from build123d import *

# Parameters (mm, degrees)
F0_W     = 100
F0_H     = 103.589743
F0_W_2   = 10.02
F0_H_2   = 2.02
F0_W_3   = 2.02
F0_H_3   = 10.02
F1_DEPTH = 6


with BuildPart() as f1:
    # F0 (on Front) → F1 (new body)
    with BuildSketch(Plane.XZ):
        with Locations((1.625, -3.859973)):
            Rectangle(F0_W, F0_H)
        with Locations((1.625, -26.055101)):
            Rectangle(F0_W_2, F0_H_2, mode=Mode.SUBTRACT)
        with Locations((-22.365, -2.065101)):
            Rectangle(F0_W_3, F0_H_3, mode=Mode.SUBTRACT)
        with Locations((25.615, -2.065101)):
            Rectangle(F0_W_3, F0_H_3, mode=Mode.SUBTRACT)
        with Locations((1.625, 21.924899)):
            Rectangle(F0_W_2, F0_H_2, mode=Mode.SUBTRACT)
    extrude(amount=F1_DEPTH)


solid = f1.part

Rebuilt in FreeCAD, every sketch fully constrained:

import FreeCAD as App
import Part
import Sketcher

V = App.Vector
Q = App.Units.Quantity


def add_polygon(sketch, points):
    """Adds a closed chain of lines whose ends are joined by coincident constraints."""
    first, n = sketch.GeometryCount, len(points)
    for a, b in zip(points, points[1:] + points[:1]):
        sketch.addGeometry(Part.LineSegment(App.Vector(*a, 0), App.Vector(*b, 0)), False)
    for i in range(n):
        sketch.addConstraint(Sketcher.Constraint("Coincident", first + i, 2, first + (i + 1) % n, 1))

doc = App.newDocument("Part")
body = doc.addObject("PartDesign::Body", "Body")

# Sketch on XZ plane
sketch1 = body.newObject("Sketcher::SketchObject", "Sketch")
sketch1.AttachmentSupport = (doc.getObject("XZ_Plane"), [""])
sketch1.MapMode = "FlatFace"
add_polygon(sketch1, [(-48.375, 47.934899), (-48.375, -55.654845), (51.625, -55.654845), (51.625, 47.934899)])  # lines 0-3
add_polygon(sketch1, [(6.635, -27.065101), (-3.385, -27.065101), (-3.385, -25.045101), (6.635, -25.045101)])  # lines 4-7
add_polygon(sketch1, [(-21.355, -7.075101), (-23.375, -7.075101), (-23.375, 2.944899), (-21.355, 2.944899)])  # lines 8-11
add_polygon(sketch1, [(26.625, -7.075101), (24.605, -7.075101), (24.605, 2.944899), (26.625, 2.944899)])  # lines 12-15
add_polygon(sketch1, [(6.635, 20.914899), (-3.385, 20.914899), (-3.385, 22.934899), (6.635, 22.934899)])  # lines 16-19
sketch1.addConstraint(Sketcher.Constraint("Vertical", 0))
sketch1.addConstraint(Sketcher.Constraint("Horizontal", 1))
sketch1.addConstraint(Sketcher.Constraint("Vertical", 2))
sketch1.addConstraint(Sketcher.Constraint("Horizontal", 3))
sketch1.addConstraint(Sketcher.Constraint("Horizontal", 4))
sketch1.addConstraint(Sketcher.Constraint("Vertical", 5))
sketch1.addConstraint(Sketcher.Constraint("Horizontal", 6))
sketch1.addConstraint(Sketcher.Constraint("Vertical", 7))
sketch1.addConstraint(Sketcher.Constraint("Horizontal", 8))
sketch1.addConstraint(Sketcher.Constraint("Vertical", 9))
sketch1.addConstraint(Sketcher.Constraint("Horizontal", 10))
sketch1.addConstraint(Sketcher.Constraint("Vertical", 11))
sketch1.addConstraint(Sketcher.Constraint("Horizontal", 12))
sketch1.addConstraint(Sketcher.Constraint("Vertical", 13))
sketch1.addConstraint(Sketcher.Constraint("Horizontal", 14))
sketch1.addConstraint(Sketcher.Constraint("Vertical", 15))
sketch1.addConstraint(Sketcher.Constraint("Horizontal", 16))
sketch1.addConstraint(Sketcher.Constraint("Vertical", 17))
sketch1.addConstraint(Sketcher.Constraint("Horizontal", 18))
sketch1.addConstraint(Sketcher.Constraint("Vertical", 19))
sketch1.addConstraint(Sketcher.Constraint("Horizontal", 11, 2, 12, 2))
sketch1.addConstraint(Sketcher.Constraint("Horizontal", 10, 2, 13, 2))
sketch1.addConstraint(Sketcher.Constraint("Vertical", 5, 2, 16, 2))
sketch1.addConstraint(Sketcher.Constraint("Vertical", 7, 2, 18, 2))
sketch1.addConstraint(Sketcher.Constraint("Equal", 10, 12))
sketch1.addConstraint(Sketcher.Constraint("Equal", 14, 5))
sketch1.addConstraint(Sketcher.Constraint("Equal", 18, 9))
sketch1.addConstraint(Sketcher.Constraint("Equal", 7, 17))
sketch1.addConstraint(Sketcher.Constraint("DistanceX", 1, 1, 1, 2, Q("100 mm")))
sketch1.addConstraint(Sketcher.Constraint("DistanceY", 4, 2, 3, 2, Q("75 mm")))
sketch1.addConstraint(Sketcher.Constraint("DistanceX", 0, 2, 8, 2, Q("25 mm")))
sketch1.addConstraint(Sketcher.Constraint("DistanceX", 4, 2, 4, 1, Q("10.02 mm")))
sketch1.addConstraint(Sketcher.Constraint("DistanceX", 8, 2, 8, 1, Q("2.02 mm")))
sketch1.addConstraint(Sketcher.Constraint("DistanceX", 0, 2, 4, 2, Q("44.99 mm")))
sketch1.addConstraint(Sketcher.Constraint("DistanceY", 5, 2, 8, 2, Q("17.97 mm")))
sketch1.addConstraint(Sketcher.Constraint("DistanceX", 6, 2, 12, 2, Q("17.97 mm")))
sketch1.addConstraint(Sketcher.Constraint("DistanceY", 10, 2, 16, 2, Q("17.97 mm")))
sketch1.addConstraint(Sketcher.Constraint("DistanceX", 0, 2, -1, 1, Q("48.375 mm")))
sketch1.addConstraint(Sketcher.Constraint("DistanceY", -1, 1, 2, 2, Q("47.934899 mm")))
sketch1.addConstraint(Sketcher.Constraint("DistanceY", 0, 2, 0, 1, Q("103.589743 mm")))
pad1 = body.newObject("PartDesign::Pad", "Pad")
pad1.Profile = sketch1
pad1.Length = 6

doc.recompute()
